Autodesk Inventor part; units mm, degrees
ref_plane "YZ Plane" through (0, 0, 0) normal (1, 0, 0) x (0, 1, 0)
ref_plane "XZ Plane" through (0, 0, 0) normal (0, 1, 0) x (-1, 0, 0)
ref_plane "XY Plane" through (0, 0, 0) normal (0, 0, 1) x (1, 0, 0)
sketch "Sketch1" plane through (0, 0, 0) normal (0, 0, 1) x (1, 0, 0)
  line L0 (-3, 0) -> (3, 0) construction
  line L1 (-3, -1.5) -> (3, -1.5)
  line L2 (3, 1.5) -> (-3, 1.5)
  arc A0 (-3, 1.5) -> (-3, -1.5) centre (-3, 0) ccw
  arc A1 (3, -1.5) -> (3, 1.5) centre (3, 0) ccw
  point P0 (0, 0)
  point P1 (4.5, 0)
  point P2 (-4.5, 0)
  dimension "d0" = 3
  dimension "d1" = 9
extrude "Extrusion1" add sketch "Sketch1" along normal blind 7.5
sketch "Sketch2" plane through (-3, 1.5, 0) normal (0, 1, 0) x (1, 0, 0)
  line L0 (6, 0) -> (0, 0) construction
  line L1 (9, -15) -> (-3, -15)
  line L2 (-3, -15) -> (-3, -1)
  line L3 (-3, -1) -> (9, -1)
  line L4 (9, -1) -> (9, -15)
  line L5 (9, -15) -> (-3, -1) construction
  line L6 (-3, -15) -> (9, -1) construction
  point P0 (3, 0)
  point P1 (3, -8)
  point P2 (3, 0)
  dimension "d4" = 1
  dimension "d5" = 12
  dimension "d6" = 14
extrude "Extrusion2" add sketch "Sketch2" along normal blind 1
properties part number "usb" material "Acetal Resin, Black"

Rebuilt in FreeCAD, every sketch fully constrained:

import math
import FreeCAD as App
import Part
import Sketcher
Q = App.Units.Quantity


def add_polygon(sketch, points):
    """Adds a closed chain of lines whose ends are joined by coincident constraints."""
    first, n = sketch.GeometryCount, len(points)
    for a, b in zip(points, points[1:] + points[:1]):
        sketch.addGeometry(Part.LineSegment(App.Vector(*a, 0), App.Vector(*b, 0)), False)
    for i in range(n):
        sketch.addConstraint(Sketcher.Constraint("Coincident", first + i, 2, first + (i + 1) % n, 1))

doc = App.newDocument("Part")
body = doc.addObject("PartDesign::Body", "Body")

# Sketch on XY plane
sketch1 = doc.addObject("Sketcher::SketchObject", "Sketch")
body.addObject(sketch1)
sketch1.AttachmentSupport = (doc.XY_Plane, [""])
sketch1.MapMode = "FlatFace"
sketch1.addGeometry(Part.ArcOfCircle(Part.Circle(App.Vector(-3, 0, 0), App.Vector(0, 0, 1), 1.5), math.radians(90), math.radians(270)), False)
sketch1.addGeometry(Part.LineSegment(App.Vector(-3, -1.5, 0), App.Vector(3, -1.5, 0)), False)
sketch1.addGeometry(Part.ArcOfCircle(Part.Circle(App.Vector(3, 0, 0), App.Vector(0, 0, 1), 1.5), math.radians(-90), math.radians(90)), False)
sketch1.addGeometry(Part.LineSegment(App.Vector(3, 1.5, 0), App.Vector(-3, 1.5, 0)), False)
sketch1.addConstraint(Sketcher.Constraint("Tangent", 0, 2, 1, 1))
sketch1.addConstraint(Sketcher.Constraint("Tangent", 1, 2, 2, 1))
sketch1.addConstraint(Sketcher.Constraint("Tangent", 2, 2, 3, 1))
sketch1.addConstraint(Sketcher.Constraint("Tangent", 3, 2, 0, 1))
sketch1.addConstraint(Sketcher.Constraint("Horizontal", 1))
sketch1.addConstraint(Sketcher.Constraint("Horizontal", 3))
sketch1.addConstraint(Sketcher.Constraint("Symmetric", 0, 3, 2, 3, -1, 1))
sketch1.addConstraint(Sketcher.Constraint("Radius", 0, Q("1.5 mm")))
sketch1.addConstraint(Sketcher.Constraint("DistanceX", 0, 3, -1, 1, Q("3 mm")))
pad1 = doc.addObject("PartDesign::Pad", "Pad")
body.addObject(pad1)
pad1.Profile = sketch1
pad1.Length = 7.5

# Sketch on XZ plane
sketch2 = doc.addObject("Sketcher::SketchObject", "Sketch001")
body.addObject(sketch2)
sketch2.AttachmentSupport = (doc.XZ_Plane, [""])
sketch2.MapMode = "FlatFace"
sketch2.AttachmentOffset = App.Placement(App.Vector(0, 0, -1.5), App.Rotation())
add_polygon(sketch2, [(-6, 15), (6, 15), (6, 1), (-6, 1)])  # lines 0-3
sketch2.addConstraint(Sketcher.Constraint("Horizontal", 0))
sketch2.addConstraint(Sketcher.Constraint("Vertical", 1))
sketch2.addConstraint(Sketcher.Constraint("Horizontal", 2))
sketch2.addConstraint(Sketcher.Constraint("Vertical", 3))
sketch2.addConstraint(Sketcher.Constraint("DistanceX", 0, 1, 0, 2, Q("12 mm")))
sketch2.addConstraint(Sketcher.Constraint("DistanceY", 1, 2, 1, 1, Q("14 mm")))
sketch2.addConstraint(Sketcher.Constraint("DistanceY", -1, 1, 1, 2, Q("1 mm")))
sketch2.addConstraint(Sketcher.Constraint("DistanceX", -1, 1, 0, 2, Q("6 mm")))
pad2 = doc.addObject("PartDesign::Pad", "Pad001")
body.addObject(pad2)
pad2.Profile = sketch2
pad2.Length = 1
pad2.Reversed = True

doc.recompute()
